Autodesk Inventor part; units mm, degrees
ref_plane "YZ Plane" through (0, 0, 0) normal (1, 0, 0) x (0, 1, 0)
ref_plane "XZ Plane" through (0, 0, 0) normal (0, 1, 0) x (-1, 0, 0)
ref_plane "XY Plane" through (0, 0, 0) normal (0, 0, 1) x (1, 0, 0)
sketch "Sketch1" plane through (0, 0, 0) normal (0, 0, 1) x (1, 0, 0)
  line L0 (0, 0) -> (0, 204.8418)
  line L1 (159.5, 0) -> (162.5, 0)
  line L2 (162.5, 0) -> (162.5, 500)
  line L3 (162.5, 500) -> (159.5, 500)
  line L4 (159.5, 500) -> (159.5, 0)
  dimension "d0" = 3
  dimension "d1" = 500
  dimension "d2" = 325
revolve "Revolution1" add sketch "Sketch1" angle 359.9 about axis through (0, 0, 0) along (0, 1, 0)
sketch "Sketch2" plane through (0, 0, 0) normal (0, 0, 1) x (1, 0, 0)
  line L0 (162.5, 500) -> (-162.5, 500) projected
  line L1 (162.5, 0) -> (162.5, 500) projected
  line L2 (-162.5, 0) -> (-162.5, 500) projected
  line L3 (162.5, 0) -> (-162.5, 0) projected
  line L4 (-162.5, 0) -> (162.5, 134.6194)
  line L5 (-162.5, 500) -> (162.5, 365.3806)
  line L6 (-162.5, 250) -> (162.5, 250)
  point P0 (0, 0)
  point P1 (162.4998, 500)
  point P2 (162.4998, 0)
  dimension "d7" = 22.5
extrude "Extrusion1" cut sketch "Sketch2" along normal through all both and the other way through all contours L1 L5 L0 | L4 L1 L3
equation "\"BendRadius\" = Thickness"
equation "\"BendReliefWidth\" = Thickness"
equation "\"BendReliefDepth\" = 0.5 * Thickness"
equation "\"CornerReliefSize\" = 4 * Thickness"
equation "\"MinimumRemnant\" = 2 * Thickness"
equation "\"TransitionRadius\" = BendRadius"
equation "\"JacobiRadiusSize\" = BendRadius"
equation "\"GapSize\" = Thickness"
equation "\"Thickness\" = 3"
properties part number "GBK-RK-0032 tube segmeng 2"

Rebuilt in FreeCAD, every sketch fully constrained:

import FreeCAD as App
import Part
import Sketcher

V = App.Vector
Q = App.Units.Quantity


def add_polygon(sketch, points):
    """Adds a closed chain of lines whose ends are joined by coincident constraints."""
    first, n = sketch.GeometryCount, len(points)
    for a, b in zip(points, points[1:] + points[:1]):
        sketch.addGeometry(Part.LineSegment(App.Vector(*a, 0), App.Vector(*b, 0)), False)
    for i in range(n):
        sketch.addConstraint(Sketcher.Constraint("Coincident", first + i, 2, first + (i + 1) % n, 1))

doc = App.newDocument("Part")
params = doc.addObject("Spreadsheet::Sheet", "Params")
for row, (alias, value) in enumerate([
    ("sketch1_width", "3 mm"),
    ("sketch1_height", "500 mm"),
    ("revolution_angle", "359.9 deg"),
    ("sketch2_width", "325 mm"),
], start=1):
    params.set(f"A{row}", alias)
    params.set(f"B{row}", "=" + value)
    params.setAlias(f"B{row}", alias)

body = doc.addObject("PartDesign::Body", "Body")

# Sketch on XY plane
sketch1 = body.newObject("Sketcher::SketchObject", "Sketch")
sketch1.AttachmentSupport = (doc.getObject("XY_Plane"), [""])
sketch1.MapMode = "FlatFace"
add_polygon(sketch1, [(159.5, 500), (159.5, 0), (162.5, 0), (162.5, 500)])  # lines 0-3
sketch1.addConstraint([
    Sketcher.Constraint("Vertical", 0),
    Sketcher.Constraint("Horizontal", 1),
    Sketcher.Constraint("Vertical", 2),
    Sketcher.Constraint("Horizontal", 3),
    Sketcher.Constraint("PointOnObject", 0, 2, -1),
    Sketcher.Constraint("DistanceX", 1, 1, 1, 2, 3.0),
    Sketcher.Constraint("DistanceY", 0, 2, 0, 1, 500.0),
    Sketcher.Constraint("DistanceX", -1, 1, 0, 2, 159.5),
])
sketch1.setExpression("Constraints[9]", "Params.sketch1_width")
sketch1.setExpression("Constraints[10]", "Params.sketch1_height")
revolution = body.newObject("PartDesign::Revolution", "Revolution")
revolution.Profile = sketch1
revolution.ReferenceAxis = (sketch1, ["V_Axis"])
revolution.setExpression("Angle", "Params.revolution_angle")

# Sketch on XY plane
sketch2 = body.newObject("Sketcher::SketchObject", "Sketch001")
sketch2.AttachmentSupport = (doc.getObject("XY_Plane"), [""])
sketch2.MapMode = "FlatFace"
add_polygon(sketch2, [(162, 365), (162, 500), (-162, 500)])  # lines 0-2
add_polygon(sketch2, [(162, 135), (-162, 0), (162, 0)])  # lines 3-5
sketch2.addConstraint([
    Sketcher.Constraint("Vertical", 0),
    Sketcher.Constraint("Horizontal", 1),
    Sketcher.Constraint("Horizontal", 4),
    Sketcher.Constraint("Vertical", 5),
    Sketcher.Constraint("Symmetric", 3, 2, 4, 2, -1, 1),
    Sketcher.Constraint("Vertical", 1, 2, 3, 2),
    Sketcher.Constraint("Vertical", 2, 2, 4, 2),
    Sketcher.Constraint("Equal", 0, 5),
    Sketcher.Constraint("Angle", 2, Q("-22.5 deg")),
    Sketcher.Constraint("DistanceX", 1, 2, 1, 1, 325.0),
    Sketcher.Constraint("DistanceY", -1, 1, 0, 2, 500.0),
])
sketch2.setExpression("Constraints[15]", "Params.sketch2_width")
pocket1 = body.newObject("PartDesign::Pocket", "Pocket")
pocket1.Profile = sketch2
pocket1.Type = "ThroughAll"
pocket1.Midplane = True

doc.recompute()
